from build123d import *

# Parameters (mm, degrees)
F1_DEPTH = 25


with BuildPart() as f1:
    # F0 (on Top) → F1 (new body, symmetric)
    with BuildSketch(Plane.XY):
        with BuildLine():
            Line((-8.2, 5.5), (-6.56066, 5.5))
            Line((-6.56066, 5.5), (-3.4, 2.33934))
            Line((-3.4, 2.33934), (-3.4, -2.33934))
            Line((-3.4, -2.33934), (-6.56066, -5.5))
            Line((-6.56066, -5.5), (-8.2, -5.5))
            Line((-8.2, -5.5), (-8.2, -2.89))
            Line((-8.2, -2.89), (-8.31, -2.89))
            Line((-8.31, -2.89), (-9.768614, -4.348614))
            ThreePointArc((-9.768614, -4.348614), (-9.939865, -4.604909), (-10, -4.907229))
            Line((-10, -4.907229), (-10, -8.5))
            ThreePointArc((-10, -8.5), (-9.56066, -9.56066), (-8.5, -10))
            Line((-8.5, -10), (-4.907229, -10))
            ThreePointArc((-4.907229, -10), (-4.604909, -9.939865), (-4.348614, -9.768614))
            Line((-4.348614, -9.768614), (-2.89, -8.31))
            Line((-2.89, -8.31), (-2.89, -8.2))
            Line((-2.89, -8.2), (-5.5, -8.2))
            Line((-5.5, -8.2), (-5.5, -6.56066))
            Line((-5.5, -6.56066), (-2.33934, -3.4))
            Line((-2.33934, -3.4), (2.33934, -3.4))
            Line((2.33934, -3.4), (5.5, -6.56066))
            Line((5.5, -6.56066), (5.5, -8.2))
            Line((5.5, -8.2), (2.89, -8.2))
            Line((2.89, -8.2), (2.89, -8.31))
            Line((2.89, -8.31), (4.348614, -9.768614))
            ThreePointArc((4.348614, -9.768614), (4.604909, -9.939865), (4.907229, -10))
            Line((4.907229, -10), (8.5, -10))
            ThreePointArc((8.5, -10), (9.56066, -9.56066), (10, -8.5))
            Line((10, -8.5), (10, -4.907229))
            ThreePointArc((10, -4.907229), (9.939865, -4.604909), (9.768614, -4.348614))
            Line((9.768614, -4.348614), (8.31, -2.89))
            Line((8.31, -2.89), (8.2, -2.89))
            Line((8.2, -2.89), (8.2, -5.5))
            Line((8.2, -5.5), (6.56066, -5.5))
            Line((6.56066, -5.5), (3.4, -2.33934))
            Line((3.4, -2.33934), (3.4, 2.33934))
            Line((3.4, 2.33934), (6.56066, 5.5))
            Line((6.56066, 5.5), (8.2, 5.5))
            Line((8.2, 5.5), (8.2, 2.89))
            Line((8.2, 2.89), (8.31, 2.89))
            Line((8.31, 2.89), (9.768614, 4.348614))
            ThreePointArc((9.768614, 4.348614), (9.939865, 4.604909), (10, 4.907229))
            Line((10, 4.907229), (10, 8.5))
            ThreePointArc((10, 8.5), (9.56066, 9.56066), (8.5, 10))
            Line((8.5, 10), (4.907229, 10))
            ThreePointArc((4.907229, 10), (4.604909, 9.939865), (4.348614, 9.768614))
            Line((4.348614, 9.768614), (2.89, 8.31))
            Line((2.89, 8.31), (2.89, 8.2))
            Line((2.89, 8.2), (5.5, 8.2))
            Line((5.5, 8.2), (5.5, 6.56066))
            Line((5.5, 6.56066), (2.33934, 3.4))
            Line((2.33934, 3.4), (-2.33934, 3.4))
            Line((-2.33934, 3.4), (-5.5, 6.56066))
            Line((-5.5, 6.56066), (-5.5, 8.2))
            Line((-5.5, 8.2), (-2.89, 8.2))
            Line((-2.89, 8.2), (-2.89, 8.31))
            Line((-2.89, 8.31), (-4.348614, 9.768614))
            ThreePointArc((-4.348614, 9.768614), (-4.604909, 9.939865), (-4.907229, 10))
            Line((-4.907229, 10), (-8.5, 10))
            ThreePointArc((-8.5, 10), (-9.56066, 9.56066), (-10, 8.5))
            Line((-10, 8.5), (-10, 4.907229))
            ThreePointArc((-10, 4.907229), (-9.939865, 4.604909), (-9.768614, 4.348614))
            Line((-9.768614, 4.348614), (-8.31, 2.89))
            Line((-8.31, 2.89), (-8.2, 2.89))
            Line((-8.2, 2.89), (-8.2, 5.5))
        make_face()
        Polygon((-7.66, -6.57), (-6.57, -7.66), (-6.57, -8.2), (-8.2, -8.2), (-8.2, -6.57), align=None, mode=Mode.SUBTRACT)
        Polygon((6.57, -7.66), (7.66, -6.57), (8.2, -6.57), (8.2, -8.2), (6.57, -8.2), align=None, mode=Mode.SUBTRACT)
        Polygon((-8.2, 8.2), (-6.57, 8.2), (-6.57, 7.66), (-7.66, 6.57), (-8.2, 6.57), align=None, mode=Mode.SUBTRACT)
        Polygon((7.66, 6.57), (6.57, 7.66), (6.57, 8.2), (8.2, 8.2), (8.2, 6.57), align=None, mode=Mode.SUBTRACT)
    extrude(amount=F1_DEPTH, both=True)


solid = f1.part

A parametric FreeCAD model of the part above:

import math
import FreeCAD as App
import Part
import Sketcher

V = App.Vector
Q = App.Units.Quantity

doc = App.newDocument("Part")
body = doc.addObject("PartDesign::Body", "Body")

# Sketch on XY plane
sketch1 = body.newObject("Sketcher::SketchObject", "Sketch")
sketch1.AttachmentSupport = (doc.getObject("XY_Plane"), [""])
sketch1.MapMode = "FlatFace"
sketch1.addGeometry([
    Part.LineSegment(V(-8.2, 5.5, 0), V(-6.56, 5.5, 0)),  # 0
    Part.LineSegment(V(-6.56, 5.5, 0), V(-3.4, 2.34, 0)),  # 1
    Part.LineSegment(V(-3.4, 2.34, 0), V(-3.4, -2.34, 0)),  # 2
    Part.LineSegment(V(-3.4, -2.34, 0), V(-6.56, -5.5, 0)),  # 3
    Part.LineSegment(V(-6.56, -5.5, 0), V(-8.2, -5.5, 0)),  # 4
    Part.LineSegment(V(-8.2, -5.5, 0), V(-8.2, -2.89, 0)),  # 5
    Part.LineSegment(V(-8.2, -2.89, 0), V(-8.31, -2.89, 0)),  # 6
    Part.LineSegment(V(-8.31, -2.89, 0), V(-9.77, -4.35, 0)),  # 7
    Part.ArcOfCircle(Part.Circle(V(-9.21, -4.91, 0), V(0, 0, 1), 0.79), math.radians(135), math.radians(180)),  # 8
    Part.LineSegment(V(-10, -4.91, 0), V(-10, -8.5, 0)),  # 9
    Part.ArcOfCircle(Part.Circle(V(-8.5, -8.5, 0), V(0, 0, 1), 1.5), math.radians(-180), math.radians(-90)),  # 10
    Part.LineSegment(V(-8.5, -10, 0), V(-4.91, -10, 0)),  # 11
    Part.ArcOfCircle(Part.Circle(V(-4.91, -9.21, 0), V(0, 0, 1), 0.79), math.radians(-90), math.radians(-45)),  # 12
    Part.LineSegment(V(-4.35, -9.77, 0), V(-2.89, -8.31, 0)),  # 13
    Part.LineSegment(V(-2.89, -8.31, 0), V(-2.89, -8.2, 0)),  # 14
    Part.LineSegment(V(-2.89, -8.2, 0), V(-5.5, -8.2, 0)),  # 15
    Part.LineSegment(V(-5.5, -8.2, 0), V(-5.5, -6.56, 0)),  # 16
    Part.LineSegment(V(-5.5, -6.56, 0), V(-2.34, -3.4, 0)),  # 17
    Part.LineSegment(V(-2.34, -3.4, 0), V(2.34, -3.4, 0)),  # 18
    Part.LineSegment(V(2.34, -3.4, 0), V(5.5, -6.56, 0)),  # 19
    Part.LineSegment(V(5.5, -6.56, 0), V(5.5, -8.2, 0)),  # 20
    Part.LineSegment(V(5.5, -8.2, 0), V(2.89, -8.2, 0)),  # 21
    Part.LineSegment(V(2.89, -8.2, 0), V(2.89, -8.31, 0)),  # 22
    Part.LineSegment(V(2.89, -8.31, 0), V(4.35, -9.77, 0)),  # 23
    Part.ArcOfCircle(Part.Circle(V(4.91, -9.21, 0), V(0, 0, 1), 0.79), math.radians(-135), math.radians(-90)),  # 24
    Part.LineSegment(V(4.91, -10, 0), V(8.5, -10, 0)),  # 25
    Part.ArcOfCircle(Part.Circle(V(8.5, -8.5, 0), V(0, 0, 1), 1.5), math.radians(-90), math.radians(0)),  # 26
    Part.LineSegment(V(10, -8.5, 0), V(10, -4.91, 0)),  # 27
    Part.ArcOfCircle(Part.Circle(V(9.21, -4.91, 0), V(0, 0, 1), 0.79), math.radians(0), math.radians(45)),  # 28
    Part.LineSegment(V(9.77, -4.35, 0), V(8.31, -2.89, 0)),  # 29
    Part.LineSegment(V(8.31, -2.89, 0), V(8.2, -2.89, 0)),  # 30
    Part.LineSegment(V(8.2, -2.89, 0), V(8.2, -5.5, 0)),  # 31
    Part.LineSegment(V(8.2, -5.5, 0), V(6.56, -5.5, 0)),  # 32
    Part.LineSegment(V(6.56, -5.5, 0), V(3.4, -2.34, 0)),  # 33
    Part.LineSegment(V(3.4, -2.34, 0), V(3.4, 2.34, 0)),  # 34
    Part.LineSegment(V(3.4, 2.34, 0), V(6.56, 5.5, 0)),  # 35
    Part.LineSegment(V(6.56, 5.5, 0), V(8.2, 5.5, 0)),  # 36
    Part.LineSegment(V(8.2, 5.5, 0), V(8.2, 2.89, 0)),  # 37
    Part.LineSegment(V(8.2, 2.89, 0), V(8.31, 2.89, 0)),  # 38
    Part.LineSegment(V(8.31, 2.89, 0), V(9.77, 4.35, 0)),  # 39
    Part.ArcOfCircle(Part.Circle(V(9.21, 4.91, 0), V(0, 0, 1), 0.79), math.radians(-45), math.radians(0)),  # 40
    Part.LineSegment(V(10, 4.91, 0), V(10, 8.5, 0)),  # 41
    Part.ArcOfCircle(Part.Circle(V(8.5, 8.5, 0), V(0, 0, 1), 1.5), math.radians(0), math.radians(90)),  # 42
    Part.LineSegment(V(8.5, 10, 0), V(4.91, 10, 0)),  # 43
    Part.ArcOfCircle(Part.Circle(V(4.91, 9.21, 0), V(0, 0, 1), 0.79), math.radians(90), math.radians(135)),  # 44
    Part.LineSegment(V(4.35, 9.77, 0), V(2.89, 8.31, 0)),  # 45
    Part.LineSegment(V(2.89, 8.31, 0), V(2.89, 8.2, 0)),  # 46
    Part.LineSegment(V(2.89, 8.2, 0), V(5.5, 8.2, 0)),  # 47
    Part.LineSegment(V(5.5, 8.2, 0), V(5.5, 6.56, 0)),  # 48
    Part.LineSegment(V(5.5, 6.56, 0), V(2.34, 3.4, 0)),  # 49
    Part.LineSegment(V(2.34, 3.4, 0), V(-2.34, 3.4, 0)),  # 50
    Part.LineSegment(V(-2.34, 3.4, 0), V(-5.5, 6.56, 0)),  # 51
    Part.LineSegment(V(-5.5, 6.56, 0), V(-5.5, 8.2, 0)),  # 52
    Part.LineSegment(V(-5.5, 8.2, 0), V(-2.89, 8.2, 0)),  # 53
    Part.LineSegment(V(-2.89, 8.2, 0), V(-2.89, 8.31, 0)),  # 54
    Part.LineSegment(V(-2.89, 8.31, 0), V(-4.35, 9.77, 0)),  # 55
    Part.ArcOfCircle(Part.Circle(V(-4.91, 9.21, 0), V(0, 0, 1), 0.79), math.radians(45), math.radians(90)),  # 56
    Part.LineSegment(V(-4.91, 10, 0), V(-8.5, 10, 0)),  # 57
    Part.ArcOfCircle(Part.Circle(V(-8.5, 8.5, 0), V(0, 0, 1), 1.5), math.radians(90), math.radians(180)),  # 58
    Part.LineSegment(V(-10, 8.5, 0), V(-10, 4.91, 0)),  # 59
    Part.ArcOfCircle(Part.Circle(V(-9.21, 4.91, 0), V(0, 0, 1), 0.79), math.radians(180), math.radians(225)),  # 60
    Part.LineSegment(V(-9.77, 4.35, 0), V(-8.31, 2.89, 0)),  # 61
    Part.LineSegment(V(-8.31, 2.89, 0), V(-8.2, 2.89, 0)),  # 62
    Part.LineSegment(V(-8.2, 2.89, 0), V(-8.2, 5.5, 0)),  # 63
    Part.LineSegment(V(-8.2, -6.57, 0), V(-7.66, -6.57, 0)),  # 64
    Part.LineSegment(V(-7.66, -6.57, 0), V(-6.57, -7.66, 0)),  # 65
    Part.LineSegment(V(-6.57, -7.66, 0), V(-6.57, -8.2, 0)),  # 66
    Part.LineSegment(V(-6.57, -8.2, 0), V(-8.2, -8.2, 0)),  # 67
    Part.LineSegment(V(-8.2, -8.2, 0), V(-8.2, -6.57, 0)),  # 68
    Part.LineSegment(V(6.57, -8.2, 0), V(6.57, -7.66, 0)),  # 69
    Part.LineSegment(V(6.57, -7.66, 0), V(7.66, -6.57, 0)),  # 70
    Part.LineSegment(V(7.66, -6.57, 0), V(8.2, -6.57, 0)),  # 71
    Part.LineSegment(V(8.2, -6.57, 0), V(8.2, -8.2, 0)),  # 72
    Part.LineSegment(V(8.2, -8.2, 0), V(6.57, -8.2, 0)),  # 73
    Part.LineSegment(V(-8.2, 6.57, 0), V(-8.2, 8.2, 0)),  # 74
    Part.LineSegment(V(-8.2, 8.2, 0), V(-6.57, 8.2, 0)),  # 75
    Part.LineSegment(V(-6.57, 8.2, 0), V(-6.57, 7.66, 0)),  # 76
    Part.LineSegment(V(-6.57, 7.66, 0), V(-7.66, 6.57, 0)),  # 77
    Part.LineSegment(V(-7.66, 6.57, 0), V(-8.2, 6.57, 0)),  # 78
    Part.LineSegment(V(8.2, 6.57, 0), V(7.66, 6.57, 0)),  # 79
    Part.LineSegment(V(7.66, 6.57, 0), V(6.57, 7.66, 0)),  # 80
    Part.LineSegment(V(6.57, 7.66, 0), V(6.57, 8.2, 0)),  # 81
    Part.LineSegment(V(6.57, 8.2, 0), V(8.2, 8.2, 0)),  # 82
    Part.LineSegment(V(8.2, 8.2, 0), V(8.2, 6.57, 0)),  # 83
], False)
sketch1.addConstraint([
    Sketcher.Constraint("Coincident", 0, 2, 1, 1),
    Sketcher.Constraint("Coincident", 1, 2, 2, 1),
    Sketcher.Constraint("Coincident", 2, 2, 3, 1),
    Sketcher.Constraint("Coincident", 3, 2, 4, 1),
    Sketcher.Constraint("Coincident", 4, 2, 5, 1),
    Sketcher.Constraint("Coincident", 5, 2, 6, 1),
    Sketcher.Constraint("Coincident", 6, 2, 7, 1),
    Sketcher.Constraint("Tangent", 7, 2, 8, 1),
    Sketcher.Constraint("Tangent", 8, 2, 9, 1),
    Sketcher.Constraint("Tangent", 9, 2, 10, 1),
    Sketcher.Constraint("Tangent", 10, 2, 11, 1),
    Sketcher.Constraint("Tangent", 11, 2, 12, 1),
    Sketcher.Constraint("Tangent", 12, 2, 13, 1),
    Sketcher.Constraint("Coincident", 13, 2, 14, 1),
    Sketcher.Constraint("Coincident", 14, 2, 15, 1),
    Sketcher.Constraint("Coincident", 15, 2, 16, 1),
    Sketcher.Constraint("Coincident", 16, 2, 17, 1),
    Sketcher.Constraint("Coincident", 17, 2, 18, 1),
    Sketcher.Constraint("Coincident", 18, 2, 19, 1),
    Sketcher.Constraint("Coincident", 19, 2, 20, 1),
    Sketcher.Constraint("Coincident", 20, 2, 21, 1),
    Sketcher.Constraint("Coincident", 21, 2, 22, 1),
    Sketcher.Constraint("Coincident", 22, 2, 23, 1),
    Sketcher.Constraint("Tangent", 23, 2, 24, 1),
    Sketcher.Constraint("Tangent", 24, 2, 25, 1),
    Sketcher.Constraint("Tangent", 25, 2, 26, 1),
    Sketcher.Constraint("Tangent", 26, 2, 27, 1),
    Sketcher.Constraint("Tangent", 27, 2, 28, 1),
    Sketcher.Constraint("Tangent", 28, 2, 29, 1),
    Sketcher.Constraint("Coincident", 29, 2, 30, 1),
    Sketcher.Constraint("Coincident", 30, 2, 31, 1),
    Sketcher.Constraint("Coincident", 31, 2, 32, 1),
    Sketcher.Constraint("Coincident", 32, 2, 33, 1),
    Sketcher.Constraint("Coincident", 33, 2, 34, 1),
    Sketcher.Constraint("Coincident", 34, 2, 35, 1),
    Sketcher.Constraint("Coincident", 35, 2, 36, 1),
    Sketcher.Constraint("Coincident", 36, 2, 37, 1),
    Sketcher.Constraint("Coincident", 37, 2, 38, 1),
    Sketcher.Constraint("Coincident", 38, 2, 39, 1),
    Sketcher.Constraint("Tangent", 39, 2, 40, 1),
    Sketcher.Constraint("Tangent", 40, 2, 41, 1),
    Sketcher.Constraint("Tangent", 41, 2, 42, 1),
    Sketcher.Constraint("Tangent", 42, 2, 43, 1),
    Sketcher.Constraint("Tangent", 43, 2, 44, 1),
    Sketcher.Constraint("Tangent", 44, 2, 45, 1),
    Sketcher.Constraint("Coincident", 45, 2, 46, 1),
    Sketcher.Constraint("Coincident", 46, 2, 47, 1),
    Sketcher.Constraint("Coincident", 47, 2, 48, 1),
    Sketcher.Constraint("Coincident", 48, 2, 49, 1),
    Sketcher.Constraint("Coincident", 49, 2, 50, 1),
    Sketcher.Constraint("Coincident", 50, 2, 51, 1),
    Sketcher.Constraint("Coincident", 51, 2, 52, 1),
    Sketcher.Constraint("Coincident", 52, 2, 53, 1),
    Sketcher.Constraint("Coincident", 53, 2, 54, 1),
    Sketcher.Constraint("Coincident", 54, 2, 55, 1),
    Sketcher.Constraint("Tangent", 55, 2, 56, 1),
    Sketcher.Constraint("Tangent", 56, 2, 57, 1),
    Sketcher.Constraint("Tangent", 57, 2, 58, 1),
    Sketcher.Constraint("Tangent", 58, 2, 59, 1),
    Sketcher.Constraint("Tangent", 59, 2, 60, 1),
    Sketcher.Constraint("Tangent", 60, 2, 61, 1),
    Sketcher.Constraint("Coincident", 61, 2, 62, 1),
    Sketcher.Constraint("Coincident", 62, 2, 63, 1),
    Sketcher.Constraint("Coincident", 63, 2, 0, 1),
    Sketcher.Constraint("Coincident", 64, 2, 65, 1),
    Sketcher.Constraint("Coincident", 65, 2, 66, 1),
    Sketcher.Constraint("Coincident", 66, 2, 67, 1),
    Sketcher.Constraint("Coincident", 67, 2, 68, 1),
    Sketcher.Constraint("Coincident", 68, 2, 64, 1),
    Sketcher.Constraint("Coincident", 69, 2, 70, 1),
    Sketcher.Constraint("Coincident", 70, 2, 71, 1),
    Sketcher.Constraint("Coincident", 71, 2, 72, 1),
    Sketcher.Constraint("Coincident", 72, 2, 73, 1),
    Sketcher.Constraint("Coincident", 73, 2, 69, 1),
    Sketcher.Constraint("Coincident", 74, 2, 75, 1),
    Sketcher.Constraint("Coincident", 75, 2, 76, 1),
    Sketcher.Constraint("Coincident", 76, 2, 77, 1),
    Sketcher.Constraint("Coincident", 77, 2, 78, 1),
    Sketcher.Constraint("Coincident", 78, 2, 74, 1),
    Sketcher.Constraint("Coincident", 79, 2, 80, 1),
    Sketcher.Constraint("Coincident", 80, 2, 81, 1),
    Sketcher.Constraint("Coincident", 81, 2, 82, 1),
    Sketcher.Constraint("Coincident", 82, 2, 83, 1),
    Sketcher.Constraint("Coincident", 83, 2, 79, 1),
    Sketcher.Constraint("Horizontal", 0),
    Sketcher.Constraint("Vertical", 2),
    Sketcher.Constraint("Horizontal", 4),
    Sketcher.Constraint("Vertical", 5),
    Sketcher.Constraint("Horizontal", 6),
    Sketcher.Constraint("Vertical", 9),
    Sketcher.Constraint("Horizontal", 11),
    Sketcher.Constraint("Vertical", 14),
    Sketcher.Constraint("Horizontal", 15),
    Sketcher.Constraint("Vertical", 16),
    Sketcher.Constraint("Horizontal", 18),
    Sketcher.Constraint("Vertical", 20),
    Sketcher.Constraint("Horizontal", 21),
    Sketcher.Constraint("Vertical", 22),
    Sketcher.Constraint("Horizontal", 25),
    Sketcher.Constraint("Vertical", 27),
    Sketcher.Constraint("Horizontal", 30),
    Sketcher.Constraint("Vertical", 31),
    Sketcher.Constraint("Horizontal", 32),
    Sketcher.Constraint("Vertical", 34),
    Sketcher.Constraint("Horizontal", 36),
    Sketcher.Constraint("Vertical", 37),
    Sketcher.Constraint("Horizontal", 38),
    Sketcher.Constraint("Vertical", 41),
    Sketcher.Constraint("Horizontal", 43),
    Sketcher.Constraint("Vertical", 46),
    Sketcher.Constraint("Horizontal", 47),
    Sketcher.Constraint("Vertical", 48),
    Sketcher.Constraint("Horizontal", 50),
    Sketcher.Constraint("Vertical", 52),
    Sketcher.Constraint("Horizontal", 53),
    Sketcher.Constraint("Vertical", 54),
    Sketcher.Constraint("Horizontal", 57),
    Sketcher.Constraint("Vertical", 59),
    Sketcher.Constraint("Horizontal", 62),
    Sketcher.Constraint("Vertical", 63),
    Sketcher.Constraint("Horizontal", 64),
    Sketcher.Constraint("Vertical", 66),
    Sketcher.Constraint("Horizontal", 67),
    Sketcher.Constraint("Vertical", 68),
    Sketcher.Constraint("Vertical", 69),
    Sketcher.Constraint("Horizontal", 71),
    Sketcher.Constraint("Vertical", 72),
    Sketcher.Constraint("Horizontal", 73),
    Sketcher.Constraint("Vertical", 74),
    Sketcher.Constraint("Horizontal", 75),
    Sketcher.Constraint("Vertical", 76),
    Sketcher.Constraint("Horizontal", 78),
    Sketcher.Constraint("Horizontal", 79),
    Sketcher.Constraint("Vertical", 81),
    Sketcher.Constraint("Horizontal", 82),
    Sketcher.Constraint("Vertical", 83),
    Sketcher.Constraint("Equal", 8, 12),
    Sketcher.Constraint("Equal", 12, 24),
    Sketcher.Constraint("Equal", 10, 26),
    Sketcher.Constraint("Equal", 24, 28),
    Sketcher.Constraint("Equal", 28, 40),
    Sketcher.Constraint("Equal", 26, 42),
    Sketcher.Constraint("Equal", 40, 44),
    Sketcher.Constraint("Equal", 44, 56),
    Sketcher.Constraint("Equal", 42, 58),
    Sketcher.Constraint("Equal", 56, 60),
    Sketcher.Constraint("Symmetric", 8, 3, 40, 3, -1, 1),
    Sketcher.Constraint("Symmetric", 12, 3, 44, 3, -1, 1),
    Sketcher.Constraint("Symmetric", 24, 3, 56, 3, -1, 1),
    Sketcher.Constraint("Symmetric", 28, 3, 60, 3, -1, 1),
    Sketcher.Constraint("Symmetric", 0, 2, 32, 2, -1, 1),
    Sketcher.Constraint("Symmetric", 1, 2, 33, 2, -1, 1),
    Sketcher.Constraint("Symmetric", 3, 2, 35, 2, -1, 1),
    Sketcher.Constraint("Symmetric", 5, 2, 37, 2, -1, 1),
    Sketcher.Constraint("Symmetric", 13, 2, 45, 2, -1, 1),
    Sketcher.Constraint("Symmetric", 15, 2, 47, 2, -1, 1),
    Sketcher.Constraint("Symmetric", 17, 2, 49, 2, -1, 1),
    Sketcher.Constraint("Symmetric", 19, 2, 51, 2, -1, 1),
    Sketcher.Constraint("Symmetric", 21, 2, 53, 2, -1, 1),
    Sketcher.Constraint("Symmetric", 29, 2, 61, 2, -1, 1),
    Sketcher.Constraint("Symmetric", 72, 2, 74, 2, -1, 1),
    Sketcher.Constraint("Symmetric", 69, 2, 76, 2, -1, 1),
    Sketcher.Constraint("Symmetric", 70, 2, 77, 2, -1, 1),
    Sketcher.Constraint("Symmetric", 64, 2, 79, 2, -1, 1),
    Sketcher.Constraint("Symmetric", 65, 2, 80, 2, -1, 1),
    Sketcher.Constraint("Symmetric", 67, 2, 82, 2, -1, 1),
    Sketcher.Constraint("Symmetric", 12, 3, 24, 3, -2),
    Sketcher.Constraint("Symmetric", 8, 3, 28, 3, -2),
    Sketcher.Constraint("Symmetric", 16, 2, 19, 2, -2),
    Sketcher.Constraint("Symmetric", 14, 2, 21, 2, -2),
    Sketcher.Constraint("Symmetric", 6, 2, 29, 2, -2),
    Sketcher.Constraint("Symmetric", 4, 2, 31, 2, -2),
    Sketcher.Constraint("Symmetric", 65, 2, 69, 2, -2),
    Sketcher.Constraint("Symmetric", 64, 2, 70, 2, -2),
    Sketcher.Constraint("Symmetric", 67, 2, 72, 2, -2),
    Sketcher.Constraint("Perpendicular", 1, 3),
    Sketcher.Constraint("Parallel", 3, 7),
    Sketcher.Constraint("Parallel", 7, 13),
    Sketcher.Constraint("Parallel", 13, 17),
    Sketcher.Constraint("Perpendicular", 17, 19),
    Sketcher.Constraint("Parallel", 19, 23),
    Sketcher.Constraint("Parallel", 23, 29),
    Sketcher.Constraint("Perpendicular", 33, 35),
    Sketcher.Constraint("Parallel", 35, 39),
    Sketcher.Constraint("Parallel", 45, 49),
    Sketcher.Constraint("Perpendicular", 49, 51),
    Sketcher.Constraint("Parallel", 51, 55),
    Sketcher.Constraint("Parallel", 61, 65),
    Sketcher.Constraint("Horizontal", 2, 2, 33, 2),
    Sketcher.Constraint("Horizontal", 21, 2, 66, 2),
    Sketcher.Constraint("Vertical", 5, 2, 62, 2),
    Sketcher.Constraint("Vertical", 63, 2, 67, 2),
    Sketcher.Constraint("Equal", 50, 2),
    Sketcher.Constraint("Equal", 53, 5),
    Sketcher.Constraint("Equal", 57, 9),
    Sketcher.Constraint("Equal", 62, 14),
    Sketcher.Constraint("Equal", 36, 16),
    Sketcher.Constraint("Equal", 79, 66),
    Sketcher.Constraint("Equal", 7, 13),
    Sketcher.Constraint("Equal", 3, 17),
    Sketcher.Constraint("Radius", 10, Q("1.500001 mm")),
    Sketcher.Constraint("Radius", 8, Q("0.789999 mm")),
    Sketcher.Constraint("DistanceX", 8, 2, -1, 1, Q("10 mm")),
    Sketcher.Constraint("DistanceX", 6, 2, 6, 1, Q("0.11 mm")),
    Sketcher.Constraint("DistanceX", 15, 2, 15, 1, Q("2.61 mm")),
    Sketcher.Constraint("DistanceX", 64, 1, 64, 2, Q("0.54 mm")),
    Sketcher.Constraint("DistanceX", 67, 2, 67, 1, Q("1.63 mm")),
    Sketcher.Constraint("DistanceY", -1, 1, 0, 2, Q("5.5 mm")),
    Sketcher.Constraint("DistanceX", 1, 2, -1, 1, Q("3.4 mm")),
    Sketcher.Constraint("DistanceX", 4, 2, -1, 1, Q("8.2 mm")),
    Sketcher.Constraint("DistanceX", 0, 1, 0, 2, Q("1.63934 mm")),
])
pad1 = body.newObject("PartDesign::Pad", "Pad")
pad1.Profile = sketch1
pad1.Length = 50
pad1.Midplane = True

doc.recompute()
